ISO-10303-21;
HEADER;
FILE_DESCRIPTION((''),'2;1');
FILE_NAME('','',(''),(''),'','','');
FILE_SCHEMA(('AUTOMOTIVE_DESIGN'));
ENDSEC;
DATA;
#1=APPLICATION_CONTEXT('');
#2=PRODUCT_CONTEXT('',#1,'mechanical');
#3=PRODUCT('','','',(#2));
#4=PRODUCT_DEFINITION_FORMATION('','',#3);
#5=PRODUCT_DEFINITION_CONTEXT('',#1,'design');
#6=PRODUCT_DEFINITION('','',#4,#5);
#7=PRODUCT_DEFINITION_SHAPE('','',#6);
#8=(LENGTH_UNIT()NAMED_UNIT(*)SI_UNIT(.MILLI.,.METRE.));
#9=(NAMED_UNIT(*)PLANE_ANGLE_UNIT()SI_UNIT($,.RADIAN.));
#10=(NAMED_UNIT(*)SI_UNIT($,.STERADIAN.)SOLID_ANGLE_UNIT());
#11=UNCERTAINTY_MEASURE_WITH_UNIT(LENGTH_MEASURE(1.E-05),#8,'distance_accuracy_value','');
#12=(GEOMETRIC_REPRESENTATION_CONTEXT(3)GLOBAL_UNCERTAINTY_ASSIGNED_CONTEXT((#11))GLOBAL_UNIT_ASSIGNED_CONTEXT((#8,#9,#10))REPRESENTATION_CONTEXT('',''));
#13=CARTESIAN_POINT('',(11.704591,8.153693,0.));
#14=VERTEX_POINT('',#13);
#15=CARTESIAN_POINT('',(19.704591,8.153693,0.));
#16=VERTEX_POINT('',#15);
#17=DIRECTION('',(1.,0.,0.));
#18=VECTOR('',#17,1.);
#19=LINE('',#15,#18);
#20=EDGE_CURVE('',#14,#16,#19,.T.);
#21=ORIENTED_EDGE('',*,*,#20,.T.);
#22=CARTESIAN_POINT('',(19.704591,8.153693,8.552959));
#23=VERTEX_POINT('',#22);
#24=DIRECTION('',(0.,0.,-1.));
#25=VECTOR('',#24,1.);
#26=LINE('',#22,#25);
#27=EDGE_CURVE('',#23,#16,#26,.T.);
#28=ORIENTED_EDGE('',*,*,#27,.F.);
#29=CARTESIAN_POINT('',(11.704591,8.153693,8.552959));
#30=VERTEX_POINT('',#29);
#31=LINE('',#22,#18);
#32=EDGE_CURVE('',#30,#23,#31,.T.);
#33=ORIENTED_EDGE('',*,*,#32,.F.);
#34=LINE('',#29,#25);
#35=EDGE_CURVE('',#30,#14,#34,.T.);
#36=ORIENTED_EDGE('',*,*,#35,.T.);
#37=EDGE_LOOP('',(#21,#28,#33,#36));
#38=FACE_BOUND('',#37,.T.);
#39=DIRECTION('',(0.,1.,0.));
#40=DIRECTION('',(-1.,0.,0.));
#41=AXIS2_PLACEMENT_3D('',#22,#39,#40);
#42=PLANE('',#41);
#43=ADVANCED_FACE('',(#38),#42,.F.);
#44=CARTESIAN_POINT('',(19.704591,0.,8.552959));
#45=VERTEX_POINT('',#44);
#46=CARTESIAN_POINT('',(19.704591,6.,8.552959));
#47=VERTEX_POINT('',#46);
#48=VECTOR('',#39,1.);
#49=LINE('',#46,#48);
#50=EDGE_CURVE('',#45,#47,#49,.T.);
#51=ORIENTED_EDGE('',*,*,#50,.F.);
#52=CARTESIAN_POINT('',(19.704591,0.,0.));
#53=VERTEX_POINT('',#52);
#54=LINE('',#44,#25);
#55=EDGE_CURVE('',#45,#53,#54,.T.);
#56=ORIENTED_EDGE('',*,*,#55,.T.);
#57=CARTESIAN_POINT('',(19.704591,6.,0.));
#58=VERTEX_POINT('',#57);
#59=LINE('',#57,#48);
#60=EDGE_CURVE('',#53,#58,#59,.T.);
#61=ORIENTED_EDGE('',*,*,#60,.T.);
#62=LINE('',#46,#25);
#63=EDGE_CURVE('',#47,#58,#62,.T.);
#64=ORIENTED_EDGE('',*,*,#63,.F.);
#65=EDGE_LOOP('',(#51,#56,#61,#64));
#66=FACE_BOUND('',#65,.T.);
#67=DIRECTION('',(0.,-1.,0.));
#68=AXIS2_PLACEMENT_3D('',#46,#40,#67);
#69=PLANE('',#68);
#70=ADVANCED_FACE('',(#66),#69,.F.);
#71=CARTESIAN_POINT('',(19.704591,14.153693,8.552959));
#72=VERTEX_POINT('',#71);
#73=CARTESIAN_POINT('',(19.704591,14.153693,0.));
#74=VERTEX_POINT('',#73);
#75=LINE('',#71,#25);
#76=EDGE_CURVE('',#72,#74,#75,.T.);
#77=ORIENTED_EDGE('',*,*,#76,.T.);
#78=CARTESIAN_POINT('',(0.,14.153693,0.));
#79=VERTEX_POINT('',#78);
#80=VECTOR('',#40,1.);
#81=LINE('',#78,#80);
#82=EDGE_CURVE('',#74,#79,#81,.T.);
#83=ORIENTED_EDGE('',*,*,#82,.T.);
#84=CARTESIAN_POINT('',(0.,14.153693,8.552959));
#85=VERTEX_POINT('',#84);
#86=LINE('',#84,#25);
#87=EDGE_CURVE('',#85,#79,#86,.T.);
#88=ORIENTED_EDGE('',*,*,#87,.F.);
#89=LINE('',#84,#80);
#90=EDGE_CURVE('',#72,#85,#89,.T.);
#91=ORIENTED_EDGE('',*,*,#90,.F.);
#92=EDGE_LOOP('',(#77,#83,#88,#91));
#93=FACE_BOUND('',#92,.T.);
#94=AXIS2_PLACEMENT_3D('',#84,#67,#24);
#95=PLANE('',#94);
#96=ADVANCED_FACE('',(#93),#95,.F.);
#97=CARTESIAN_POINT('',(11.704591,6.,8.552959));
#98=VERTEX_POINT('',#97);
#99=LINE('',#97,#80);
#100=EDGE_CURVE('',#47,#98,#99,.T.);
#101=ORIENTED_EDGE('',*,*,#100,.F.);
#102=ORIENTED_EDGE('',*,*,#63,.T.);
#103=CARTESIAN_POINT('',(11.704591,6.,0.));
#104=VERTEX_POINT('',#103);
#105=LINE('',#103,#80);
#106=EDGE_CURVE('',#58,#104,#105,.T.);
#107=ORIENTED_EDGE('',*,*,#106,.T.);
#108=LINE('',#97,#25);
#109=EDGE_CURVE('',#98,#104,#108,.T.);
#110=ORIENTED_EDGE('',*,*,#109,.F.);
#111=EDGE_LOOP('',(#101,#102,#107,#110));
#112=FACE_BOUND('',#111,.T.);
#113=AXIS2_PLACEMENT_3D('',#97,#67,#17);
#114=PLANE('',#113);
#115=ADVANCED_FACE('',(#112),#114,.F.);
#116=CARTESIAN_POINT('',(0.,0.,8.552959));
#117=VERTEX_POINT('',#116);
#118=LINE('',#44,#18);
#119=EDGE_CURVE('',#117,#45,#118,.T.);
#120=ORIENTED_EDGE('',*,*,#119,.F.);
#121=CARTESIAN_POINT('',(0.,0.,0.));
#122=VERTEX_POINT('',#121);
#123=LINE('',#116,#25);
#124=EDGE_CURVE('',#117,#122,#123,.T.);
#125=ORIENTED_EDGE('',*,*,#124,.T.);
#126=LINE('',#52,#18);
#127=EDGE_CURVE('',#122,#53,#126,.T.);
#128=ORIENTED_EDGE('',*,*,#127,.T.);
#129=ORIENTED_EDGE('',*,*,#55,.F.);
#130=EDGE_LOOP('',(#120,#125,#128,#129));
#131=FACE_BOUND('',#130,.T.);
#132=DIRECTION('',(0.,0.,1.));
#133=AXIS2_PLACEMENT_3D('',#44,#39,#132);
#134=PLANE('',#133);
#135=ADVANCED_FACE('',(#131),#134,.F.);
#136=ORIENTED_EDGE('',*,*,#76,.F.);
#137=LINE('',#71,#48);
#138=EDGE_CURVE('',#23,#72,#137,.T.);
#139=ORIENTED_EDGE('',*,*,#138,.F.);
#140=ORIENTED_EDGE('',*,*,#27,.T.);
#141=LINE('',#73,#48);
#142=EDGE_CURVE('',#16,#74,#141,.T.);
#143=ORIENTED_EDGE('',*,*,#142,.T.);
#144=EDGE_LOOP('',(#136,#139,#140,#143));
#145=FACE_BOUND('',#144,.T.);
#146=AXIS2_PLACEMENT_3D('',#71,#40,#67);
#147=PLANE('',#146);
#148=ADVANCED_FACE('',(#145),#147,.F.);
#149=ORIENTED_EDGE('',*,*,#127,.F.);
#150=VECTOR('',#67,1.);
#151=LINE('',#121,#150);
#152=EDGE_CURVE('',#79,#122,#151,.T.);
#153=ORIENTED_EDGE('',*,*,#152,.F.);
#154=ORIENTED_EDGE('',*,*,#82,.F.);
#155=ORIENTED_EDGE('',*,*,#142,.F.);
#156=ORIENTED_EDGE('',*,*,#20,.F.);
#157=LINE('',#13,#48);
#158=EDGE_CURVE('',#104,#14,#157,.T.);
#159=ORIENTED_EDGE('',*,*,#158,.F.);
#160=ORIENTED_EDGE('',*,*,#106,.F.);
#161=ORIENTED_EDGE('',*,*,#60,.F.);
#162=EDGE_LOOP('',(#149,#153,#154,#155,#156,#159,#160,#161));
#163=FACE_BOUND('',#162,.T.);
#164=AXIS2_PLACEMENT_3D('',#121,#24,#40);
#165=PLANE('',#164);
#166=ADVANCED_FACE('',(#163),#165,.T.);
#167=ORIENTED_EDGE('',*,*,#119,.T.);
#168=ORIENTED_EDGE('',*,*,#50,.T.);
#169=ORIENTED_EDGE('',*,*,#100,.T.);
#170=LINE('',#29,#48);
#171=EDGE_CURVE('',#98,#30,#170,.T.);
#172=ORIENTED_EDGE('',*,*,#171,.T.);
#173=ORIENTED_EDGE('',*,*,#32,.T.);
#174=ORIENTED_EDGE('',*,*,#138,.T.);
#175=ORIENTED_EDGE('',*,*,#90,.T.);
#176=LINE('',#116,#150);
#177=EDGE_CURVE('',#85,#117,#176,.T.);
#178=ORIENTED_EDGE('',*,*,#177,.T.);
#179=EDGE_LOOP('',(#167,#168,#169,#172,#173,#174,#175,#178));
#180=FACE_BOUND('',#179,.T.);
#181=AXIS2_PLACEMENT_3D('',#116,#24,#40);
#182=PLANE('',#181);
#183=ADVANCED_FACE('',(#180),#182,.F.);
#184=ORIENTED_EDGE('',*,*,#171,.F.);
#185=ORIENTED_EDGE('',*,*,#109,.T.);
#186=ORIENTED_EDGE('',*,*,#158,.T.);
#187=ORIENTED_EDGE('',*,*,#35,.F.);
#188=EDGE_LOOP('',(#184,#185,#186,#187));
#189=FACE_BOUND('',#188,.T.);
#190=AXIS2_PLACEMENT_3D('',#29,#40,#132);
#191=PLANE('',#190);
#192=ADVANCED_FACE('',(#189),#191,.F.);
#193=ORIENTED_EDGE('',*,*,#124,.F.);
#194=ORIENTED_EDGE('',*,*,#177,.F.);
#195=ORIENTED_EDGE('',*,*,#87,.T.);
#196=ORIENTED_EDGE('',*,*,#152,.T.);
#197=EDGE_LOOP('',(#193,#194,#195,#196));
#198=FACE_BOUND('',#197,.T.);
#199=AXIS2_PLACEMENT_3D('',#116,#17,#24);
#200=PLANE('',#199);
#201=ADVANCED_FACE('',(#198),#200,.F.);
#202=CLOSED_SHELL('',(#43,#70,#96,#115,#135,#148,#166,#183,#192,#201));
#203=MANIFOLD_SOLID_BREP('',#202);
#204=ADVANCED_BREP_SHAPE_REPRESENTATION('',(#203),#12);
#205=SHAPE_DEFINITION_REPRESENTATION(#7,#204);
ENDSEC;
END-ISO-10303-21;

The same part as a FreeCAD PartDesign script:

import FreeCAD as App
import Part
import Sketcher
Q = App.Units.Quantity

doc = App.newDocument("Part")
body = doc.addObject("PartDesign::Body", "Body")

# Sketch on XY plane
sketch1 = doc.addObject("Sketcher::SketchObject", "Sketch")
body.addObject(sketch1)
sketch1.AttachmentSupport = (doc.XY_Plane, [""])
sketch1.MapMode = "FlatFace"
sketch1.addGeometry(Part.LineSegment(App.Vector(0, 14.2, 0), App.Vector(0, 0, 0)), False)
sketch1.addGeometry(Part.LineSegment(App.Vector(0, 0, 0), App.Vector(19.7, 0, 0)), False)
sketch1.addGeometry(Part.LineSegment(App.Vector(19.7, 0, 0), App.Vector(19.7, 6, 0)), False)
sketch1.addGeometry(Part.LineSegment(App.Vector(19.7, 6, 0), App.Vector(11.7, 6, 0)), False)
sketch1.addGeometry(Part.LineSegment(App.Vector(11.7, 6, 0), App.Vector(11.7, 8.2, 0)), False)
sketch1.addGeometry(Part.LineSegment(App.Vector(11.7, 8.2, 0), App.Vector(19.7, 8.2, 0)), False)
sketch1.addGeometry(Part.LineSegment(App.Vector(19.7, 8.2, 0), App.Vector(19.7, 14.2, 0)), False)
sketch1.addGeometry(Part.LineSegment(App.Vector(19.7, 14.2, 0), App.Vector(0, 14.2, 0)), False)
sketch1.addConstraint(Sketcher.Constraint("Coincident", 0, 2, 1, 1))
sketch1.addConstraint(Sketcher.Constraint("Coincident", 1, 2, 2, 1))
sketch1.addConstraint(Sketcher.Constraint("Coincident", 2, 2, 3, 1))
sketch1.addConstraint(Sketcher.Constraint("Coincident", 3, 2, 4, 1))
sketch1.addConstraint(Sketcher.Constraint("Coincident", 4, 2, 5, 1))
sketch1.addConstraint(Sketcher.Constraint("Coincident", 5, 2, 6, 1))
sketch1.addConstraint(Sketcher.Constraint("Coincident", 6, 2, 7, 1))
sketch1.addConstraint(Sketcher.Constraint("Coincident", 7, 2, 0, 1))
sketch1.addConstraint(Sketcher.Constraint("Vertical", 0))
sketch1.addConstraint(Sketcher.Constraint("Horizontal", 1))
sketch1.addConstraint(Sketcher.Constraint("Vertical", 2))
sketch1.addConstraint(Sketcher.Constraint("Horizontal", 3))
sketch1.addConstraint(Sketcher.Constraint("Vertical", 4))
sketch1.addConstraint(Sketcher.Constraint("Horizontal", 5))
sketch1.addConstraint(Sketcher.Constraint("Vertical", 6))
sketch1.addConstraint(Sketcher.Constraint("Horizontal", 7))
sketch1.addConstraint(Sketcher.Constraint("Coincident", 0, 2, -1, 1))
sketch1.addConstraint(Sketcher.Constraint("Vertical", 2, 2, 5, 2))
sketch1.addConstraint(Sketcher.Constraint("Equal", 2, 6))
sketch1.addConstraint(Sketcher.Constraint("DistanceX", 3, 2, 3, 1, Q("8 mm")))
sketch1.addConstraint(Sketcher.Constraint("DistanceY", 2, 1, 2, 2, Q("6 mm")))
sketch1.addConstraint(Sketcher.Constraint("DistanceX", 1, 1, 1, 2, Q("19.704591 mm")))
sketch1.addConstraint(Sketcher.Constraint("DistanceY", 0, 2, 0, 1, Q("14.153693 mm")))
pad1 = doc.addObject("PartDesign::Pad", "Pad")
body.addObject(pad1)
pad1.Profile = sketch1
pad1.Length = 8.552959

doc.recompute()
